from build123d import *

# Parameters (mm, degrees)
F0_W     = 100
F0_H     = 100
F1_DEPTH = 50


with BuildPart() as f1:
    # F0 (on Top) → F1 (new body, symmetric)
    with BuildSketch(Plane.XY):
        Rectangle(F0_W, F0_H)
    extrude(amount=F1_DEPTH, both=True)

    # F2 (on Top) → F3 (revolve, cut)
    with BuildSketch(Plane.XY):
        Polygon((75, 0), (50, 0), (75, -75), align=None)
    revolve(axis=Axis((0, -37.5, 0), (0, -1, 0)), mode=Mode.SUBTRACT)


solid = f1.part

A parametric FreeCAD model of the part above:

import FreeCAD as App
import Part
import Sketcher
Q = App.Units.Quantity

doc = App.newDocument("Part")
body = doc.addObject("PartDesign::Body", "Body")

# Sketch on XY plane
sketch1 = body.newObject("Sketcher::SketchObject", "Sketch")
sketch1.AttachmentSupport = (doc.getObject("XY_Plane"), [""])
sketch1.MapMode = "FlatFace"
sketch1.addGeometry([
    Part.LineSegment(App.Vector(-50, 50, 0), App.Vector(-50, -50, 0)),
    Part.LineSegment(App.Vector(-50, -50, 0), App.Vector(50, -50, 0)),
    Part.LineSegment(App.Vector(50, -50, 0), App.Vector(50, 50, 0)),
    Part.LineSegment(App.Vector(50, 50, 0), App.Vector(-50, 50, 0)),
], False)
sketch1.addConstraint([
    Sketcher.Constraint("Coincident", 0, 2, 1, 1),
    Sketcher.Constraint("Coincident", 1, 2, 2, 1),
    Sketcher.Constraint("Coincident", 2, 2, 3, 1),
    Sketcher.Constraint("Coincident", 3, 2, 0, 1),
    Sketcher.Constraint("Vertical", 0),
    Sketcher.Constraint("Horizontal", 1),
    Sketcher.Constraint("Vertical", 2),
    Sketcher.Constraint("Horizontal", 3),
    Sketcher.Constraint("Symmetric", 0, 2, 2, 2, -1, 1),
    Sketcher.Constraint("Equal", 3, 0),
    Sketcher.Constraint("DistanceX", 1, 1, 1, 2, Q("100 mm")),
])
pad1 = body.newObject("PartDesign::Pad", "Pad")
pad1.Profile = sketch1
pad1.Length = 100
pad1.Midplane = True

# Sketch on XY plane
sketch2 = body.newObject("Sketcher::SketchObject", "Sketch001")
sketch2.AttachmentSupport = (doc.getObject("XY_Plane"), [""])
sketch2.MapMode = "FlatFace"
sketch2.addGeometry([
    Part.LineSegment(App.Vector(75, 0, 0), App.Vector(50, 0, 0)),
    Part.LineSegment(App.Vector(50, 0, 0), App.Vector(75, -75, 0)),
    Part.LineSegment(App.Vector(75, -75, 0), App.Vector(75, 0, 0)),
], False)
sketch2.addConstraint([
    Sketcher.Constraint("Coincident", 0, 2, 1, 1),
    Sketcher.Constraint("Coincident", 1, 2, 2, 1),
    Sketcher.Constraint("Coincident", 2, 2, 0, 1),
    Sketcher.Constraint("Horizontal", 0),
    Sketcher.Constraint("Vertical", 2),
    Sketcher.Constraint("PointOnObject", 0, 2, -1),
    Sketcher.Constraint("DistanceX", 0, 2, 0, 1, Q("25 mm")),
    Sketcher.Constraint("DistanceY", 2, 1, 2, 2, Q("75 mm")),
    Sketcher.Constraint("DistanceX", -1, 1, 0, 2, Q("50 mm")),
])
groove = body.newObject("PartDesign::Groove", "Groove")
groove.Profile = sketch2
groove.ReferenceAxis = (sketch2, ["V_Axis"])
groove.Angle = 360

doc.recompute()
